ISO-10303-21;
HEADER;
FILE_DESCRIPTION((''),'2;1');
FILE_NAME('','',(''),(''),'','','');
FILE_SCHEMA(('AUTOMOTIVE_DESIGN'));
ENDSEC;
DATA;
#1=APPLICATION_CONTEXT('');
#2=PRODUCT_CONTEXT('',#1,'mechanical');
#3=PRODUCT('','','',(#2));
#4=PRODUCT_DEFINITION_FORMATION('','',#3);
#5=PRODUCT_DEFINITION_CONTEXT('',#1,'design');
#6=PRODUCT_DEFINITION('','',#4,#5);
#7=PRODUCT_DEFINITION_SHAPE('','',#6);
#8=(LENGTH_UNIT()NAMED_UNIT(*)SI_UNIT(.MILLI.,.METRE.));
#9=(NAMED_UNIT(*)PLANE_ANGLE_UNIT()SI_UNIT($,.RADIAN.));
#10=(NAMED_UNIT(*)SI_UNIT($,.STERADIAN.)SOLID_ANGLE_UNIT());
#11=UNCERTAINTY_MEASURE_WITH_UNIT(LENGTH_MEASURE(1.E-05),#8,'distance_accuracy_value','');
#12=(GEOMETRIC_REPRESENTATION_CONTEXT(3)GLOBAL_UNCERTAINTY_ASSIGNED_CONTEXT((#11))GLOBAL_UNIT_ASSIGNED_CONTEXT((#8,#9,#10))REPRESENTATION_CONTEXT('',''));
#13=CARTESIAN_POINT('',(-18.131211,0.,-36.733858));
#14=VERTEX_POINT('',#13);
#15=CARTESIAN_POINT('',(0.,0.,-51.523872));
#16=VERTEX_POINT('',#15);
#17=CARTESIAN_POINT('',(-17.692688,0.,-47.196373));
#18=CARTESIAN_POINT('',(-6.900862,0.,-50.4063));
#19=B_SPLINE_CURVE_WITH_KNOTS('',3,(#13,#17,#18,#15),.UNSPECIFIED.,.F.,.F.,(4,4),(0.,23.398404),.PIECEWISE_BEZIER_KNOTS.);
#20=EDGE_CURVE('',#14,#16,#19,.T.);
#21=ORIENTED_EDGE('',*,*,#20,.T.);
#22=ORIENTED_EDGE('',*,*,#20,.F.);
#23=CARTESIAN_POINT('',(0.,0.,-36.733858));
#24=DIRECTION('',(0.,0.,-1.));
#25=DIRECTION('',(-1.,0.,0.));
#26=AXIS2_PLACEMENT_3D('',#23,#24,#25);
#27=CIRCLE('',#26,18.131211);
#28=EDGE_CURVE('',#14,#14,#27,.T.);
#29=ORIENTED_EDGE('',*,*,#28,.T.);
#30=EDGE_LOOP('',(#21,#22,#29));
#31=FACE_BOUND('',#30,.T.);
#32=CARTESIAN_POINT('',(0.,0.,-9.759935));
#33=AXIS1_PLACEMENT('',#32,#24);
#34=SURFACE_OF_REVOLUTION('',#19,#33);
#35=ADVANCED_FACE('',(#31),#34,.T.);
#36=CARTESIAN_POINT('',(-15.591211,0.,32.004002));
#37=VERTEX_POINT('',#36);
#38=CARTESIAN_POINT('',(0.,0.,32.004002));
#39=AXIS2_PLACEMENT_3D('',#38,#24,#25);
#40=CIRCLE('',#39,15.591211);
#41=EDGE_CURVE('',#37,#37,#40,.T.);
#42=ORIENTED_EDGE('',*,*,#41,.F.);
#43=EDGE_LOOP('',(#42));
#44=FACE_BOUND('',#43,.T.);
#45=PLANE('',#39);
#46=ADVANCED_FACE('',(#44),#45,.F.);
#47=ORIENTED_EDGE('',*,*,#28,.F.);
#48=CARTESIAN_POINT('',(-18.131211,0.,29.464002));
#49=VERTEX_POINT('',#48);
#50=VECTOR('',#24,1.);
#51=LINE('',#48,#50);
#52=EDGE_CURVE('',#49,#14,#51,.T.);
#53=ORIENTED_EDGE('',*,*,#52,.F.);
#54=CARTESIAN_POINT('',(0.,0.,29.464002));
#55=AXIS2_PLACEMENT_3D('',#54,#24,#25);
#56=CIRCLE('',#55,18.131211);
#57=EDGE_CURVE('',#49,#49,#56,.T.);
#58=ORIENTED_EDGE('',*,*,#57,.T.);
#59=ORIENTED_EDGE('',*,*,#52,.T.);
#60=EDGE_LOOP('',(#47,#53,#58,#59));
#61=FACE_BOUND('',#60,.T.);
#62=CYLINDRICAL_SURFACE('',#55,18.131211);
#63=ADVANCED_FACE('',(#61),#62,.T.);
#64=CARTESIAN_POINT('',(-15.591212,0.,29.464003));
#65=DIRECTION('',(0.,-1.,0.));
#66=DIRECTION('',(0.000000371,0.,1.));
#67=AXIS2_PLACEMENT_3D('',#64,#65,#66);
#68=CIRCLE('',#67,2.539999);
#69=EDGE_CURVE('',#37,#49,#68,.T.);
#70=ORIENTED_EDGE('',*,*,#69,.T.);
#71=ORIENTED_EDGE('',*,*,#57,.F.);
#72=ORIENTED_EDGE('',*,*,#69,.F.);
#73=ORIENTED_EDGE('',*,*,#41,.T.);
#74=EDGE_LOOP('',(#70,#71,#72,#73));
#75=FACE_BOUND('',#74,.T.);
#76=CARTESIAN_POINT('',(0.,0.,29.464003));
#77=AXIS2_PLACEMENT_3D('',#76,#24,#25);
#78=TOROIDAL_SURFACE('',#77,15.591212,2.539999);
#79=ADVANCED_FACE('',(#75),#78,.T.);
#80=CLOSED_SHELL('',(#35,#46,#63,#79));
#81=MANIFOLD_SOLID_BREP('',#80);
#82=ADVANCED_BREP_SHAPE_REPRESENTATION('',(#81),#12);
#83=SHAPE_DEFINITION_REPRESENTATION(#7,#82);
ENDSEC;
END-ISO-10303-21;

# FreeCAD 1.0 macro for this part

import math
import FreeCAD as App
import Part
import Sketcher

V = App.Vector
Q = App.Units.Quantity

doc = App.newDocument("Part")
body = doc.addObject("PartDesign::Body", "Body")

# Sketch on XZ plane
sketch1 = body.newObject("Sketcher::SketchObject", "Sketch")
sketch1.AttachmentSupport = (doc.getObject("XZ_Plane"), [""])
sketch1.MapMode = "FlatFace"
sketch1.addGeometry(Part.ArcOfCircle(Part.Circle(V(-15.591212, 29.464003, 0), V(0, 0, 1), 2.539999), math.radians(89.999979), math.radians(180.000021)), False)
sketch1.addGeometry(Part.LineSegment(V(-18.131211, 29.464002, 0), V(-18.131211, -36.733858, 0)), False)
sketch1.addGeometry(Part.BSplineCurve([V(-18.131211, -36.733858, 0), V(-17.692688, -47.196373, 0), V(-6.900862, -50.4063, 0), V(0, -51.523872, 0)], [4, 4], [0, 23.398404], False, 3, [1, 1, 1, 1], False), False)
sketch1.addGeometry(Part.LineSegment(V(0, -51.523872, 0), V(0, 32.004002, 0)), False)
sketch1.addGeometry(Part.LineSegment(V(0, 32.004002, 0), V(-15.591211, 32.004002, 0)), False)
sketch1.addConstraint(Sketcher.Constraint("Block", 2))
sketch1.addConstraint(Sketcher.Constraint("Tangent", 0, 2, 1, 1))
sketch1.addConstraint(Sketcher.Constraint("Coincident", 1, 2, 2, 1))
sketch1.addConstraint(Sketcher.Constraint("Coincident", 2, 2, 3, 1))
sketch1.addConstraint(Sketcher.Constraint("Coincident", 3, 2, 4, 1))
sketch1.addConstraint(Sketcher.Constraint("Tangent", 4, 2, 0, 1))
sketch1.addConstraint(Sketcher.Constraint("Vertical", 1))
sketch1.addConstraint(Sketcher.Constraint("Vertical", 3))
sketch1.addConstraint(Sketcher.Constraint("Horizontal", 4))
sketch1.addConstraint(Sketcher.Constraint("Radius", 0, Q("0.1 in")))
sketch1.addConstraint(Sketcher.Constraint("DistanceY", -1, 1, 0, 3, Q("1.1600001 in")))
revolution = body.newObject("PartDesign::Revolution", "Revolution")
revolution.Profile = sketch1
revolution.ReferenceAxis = (sketch1, ["V_Axis"])
revolution.Angle = 360

doc.recompute()
